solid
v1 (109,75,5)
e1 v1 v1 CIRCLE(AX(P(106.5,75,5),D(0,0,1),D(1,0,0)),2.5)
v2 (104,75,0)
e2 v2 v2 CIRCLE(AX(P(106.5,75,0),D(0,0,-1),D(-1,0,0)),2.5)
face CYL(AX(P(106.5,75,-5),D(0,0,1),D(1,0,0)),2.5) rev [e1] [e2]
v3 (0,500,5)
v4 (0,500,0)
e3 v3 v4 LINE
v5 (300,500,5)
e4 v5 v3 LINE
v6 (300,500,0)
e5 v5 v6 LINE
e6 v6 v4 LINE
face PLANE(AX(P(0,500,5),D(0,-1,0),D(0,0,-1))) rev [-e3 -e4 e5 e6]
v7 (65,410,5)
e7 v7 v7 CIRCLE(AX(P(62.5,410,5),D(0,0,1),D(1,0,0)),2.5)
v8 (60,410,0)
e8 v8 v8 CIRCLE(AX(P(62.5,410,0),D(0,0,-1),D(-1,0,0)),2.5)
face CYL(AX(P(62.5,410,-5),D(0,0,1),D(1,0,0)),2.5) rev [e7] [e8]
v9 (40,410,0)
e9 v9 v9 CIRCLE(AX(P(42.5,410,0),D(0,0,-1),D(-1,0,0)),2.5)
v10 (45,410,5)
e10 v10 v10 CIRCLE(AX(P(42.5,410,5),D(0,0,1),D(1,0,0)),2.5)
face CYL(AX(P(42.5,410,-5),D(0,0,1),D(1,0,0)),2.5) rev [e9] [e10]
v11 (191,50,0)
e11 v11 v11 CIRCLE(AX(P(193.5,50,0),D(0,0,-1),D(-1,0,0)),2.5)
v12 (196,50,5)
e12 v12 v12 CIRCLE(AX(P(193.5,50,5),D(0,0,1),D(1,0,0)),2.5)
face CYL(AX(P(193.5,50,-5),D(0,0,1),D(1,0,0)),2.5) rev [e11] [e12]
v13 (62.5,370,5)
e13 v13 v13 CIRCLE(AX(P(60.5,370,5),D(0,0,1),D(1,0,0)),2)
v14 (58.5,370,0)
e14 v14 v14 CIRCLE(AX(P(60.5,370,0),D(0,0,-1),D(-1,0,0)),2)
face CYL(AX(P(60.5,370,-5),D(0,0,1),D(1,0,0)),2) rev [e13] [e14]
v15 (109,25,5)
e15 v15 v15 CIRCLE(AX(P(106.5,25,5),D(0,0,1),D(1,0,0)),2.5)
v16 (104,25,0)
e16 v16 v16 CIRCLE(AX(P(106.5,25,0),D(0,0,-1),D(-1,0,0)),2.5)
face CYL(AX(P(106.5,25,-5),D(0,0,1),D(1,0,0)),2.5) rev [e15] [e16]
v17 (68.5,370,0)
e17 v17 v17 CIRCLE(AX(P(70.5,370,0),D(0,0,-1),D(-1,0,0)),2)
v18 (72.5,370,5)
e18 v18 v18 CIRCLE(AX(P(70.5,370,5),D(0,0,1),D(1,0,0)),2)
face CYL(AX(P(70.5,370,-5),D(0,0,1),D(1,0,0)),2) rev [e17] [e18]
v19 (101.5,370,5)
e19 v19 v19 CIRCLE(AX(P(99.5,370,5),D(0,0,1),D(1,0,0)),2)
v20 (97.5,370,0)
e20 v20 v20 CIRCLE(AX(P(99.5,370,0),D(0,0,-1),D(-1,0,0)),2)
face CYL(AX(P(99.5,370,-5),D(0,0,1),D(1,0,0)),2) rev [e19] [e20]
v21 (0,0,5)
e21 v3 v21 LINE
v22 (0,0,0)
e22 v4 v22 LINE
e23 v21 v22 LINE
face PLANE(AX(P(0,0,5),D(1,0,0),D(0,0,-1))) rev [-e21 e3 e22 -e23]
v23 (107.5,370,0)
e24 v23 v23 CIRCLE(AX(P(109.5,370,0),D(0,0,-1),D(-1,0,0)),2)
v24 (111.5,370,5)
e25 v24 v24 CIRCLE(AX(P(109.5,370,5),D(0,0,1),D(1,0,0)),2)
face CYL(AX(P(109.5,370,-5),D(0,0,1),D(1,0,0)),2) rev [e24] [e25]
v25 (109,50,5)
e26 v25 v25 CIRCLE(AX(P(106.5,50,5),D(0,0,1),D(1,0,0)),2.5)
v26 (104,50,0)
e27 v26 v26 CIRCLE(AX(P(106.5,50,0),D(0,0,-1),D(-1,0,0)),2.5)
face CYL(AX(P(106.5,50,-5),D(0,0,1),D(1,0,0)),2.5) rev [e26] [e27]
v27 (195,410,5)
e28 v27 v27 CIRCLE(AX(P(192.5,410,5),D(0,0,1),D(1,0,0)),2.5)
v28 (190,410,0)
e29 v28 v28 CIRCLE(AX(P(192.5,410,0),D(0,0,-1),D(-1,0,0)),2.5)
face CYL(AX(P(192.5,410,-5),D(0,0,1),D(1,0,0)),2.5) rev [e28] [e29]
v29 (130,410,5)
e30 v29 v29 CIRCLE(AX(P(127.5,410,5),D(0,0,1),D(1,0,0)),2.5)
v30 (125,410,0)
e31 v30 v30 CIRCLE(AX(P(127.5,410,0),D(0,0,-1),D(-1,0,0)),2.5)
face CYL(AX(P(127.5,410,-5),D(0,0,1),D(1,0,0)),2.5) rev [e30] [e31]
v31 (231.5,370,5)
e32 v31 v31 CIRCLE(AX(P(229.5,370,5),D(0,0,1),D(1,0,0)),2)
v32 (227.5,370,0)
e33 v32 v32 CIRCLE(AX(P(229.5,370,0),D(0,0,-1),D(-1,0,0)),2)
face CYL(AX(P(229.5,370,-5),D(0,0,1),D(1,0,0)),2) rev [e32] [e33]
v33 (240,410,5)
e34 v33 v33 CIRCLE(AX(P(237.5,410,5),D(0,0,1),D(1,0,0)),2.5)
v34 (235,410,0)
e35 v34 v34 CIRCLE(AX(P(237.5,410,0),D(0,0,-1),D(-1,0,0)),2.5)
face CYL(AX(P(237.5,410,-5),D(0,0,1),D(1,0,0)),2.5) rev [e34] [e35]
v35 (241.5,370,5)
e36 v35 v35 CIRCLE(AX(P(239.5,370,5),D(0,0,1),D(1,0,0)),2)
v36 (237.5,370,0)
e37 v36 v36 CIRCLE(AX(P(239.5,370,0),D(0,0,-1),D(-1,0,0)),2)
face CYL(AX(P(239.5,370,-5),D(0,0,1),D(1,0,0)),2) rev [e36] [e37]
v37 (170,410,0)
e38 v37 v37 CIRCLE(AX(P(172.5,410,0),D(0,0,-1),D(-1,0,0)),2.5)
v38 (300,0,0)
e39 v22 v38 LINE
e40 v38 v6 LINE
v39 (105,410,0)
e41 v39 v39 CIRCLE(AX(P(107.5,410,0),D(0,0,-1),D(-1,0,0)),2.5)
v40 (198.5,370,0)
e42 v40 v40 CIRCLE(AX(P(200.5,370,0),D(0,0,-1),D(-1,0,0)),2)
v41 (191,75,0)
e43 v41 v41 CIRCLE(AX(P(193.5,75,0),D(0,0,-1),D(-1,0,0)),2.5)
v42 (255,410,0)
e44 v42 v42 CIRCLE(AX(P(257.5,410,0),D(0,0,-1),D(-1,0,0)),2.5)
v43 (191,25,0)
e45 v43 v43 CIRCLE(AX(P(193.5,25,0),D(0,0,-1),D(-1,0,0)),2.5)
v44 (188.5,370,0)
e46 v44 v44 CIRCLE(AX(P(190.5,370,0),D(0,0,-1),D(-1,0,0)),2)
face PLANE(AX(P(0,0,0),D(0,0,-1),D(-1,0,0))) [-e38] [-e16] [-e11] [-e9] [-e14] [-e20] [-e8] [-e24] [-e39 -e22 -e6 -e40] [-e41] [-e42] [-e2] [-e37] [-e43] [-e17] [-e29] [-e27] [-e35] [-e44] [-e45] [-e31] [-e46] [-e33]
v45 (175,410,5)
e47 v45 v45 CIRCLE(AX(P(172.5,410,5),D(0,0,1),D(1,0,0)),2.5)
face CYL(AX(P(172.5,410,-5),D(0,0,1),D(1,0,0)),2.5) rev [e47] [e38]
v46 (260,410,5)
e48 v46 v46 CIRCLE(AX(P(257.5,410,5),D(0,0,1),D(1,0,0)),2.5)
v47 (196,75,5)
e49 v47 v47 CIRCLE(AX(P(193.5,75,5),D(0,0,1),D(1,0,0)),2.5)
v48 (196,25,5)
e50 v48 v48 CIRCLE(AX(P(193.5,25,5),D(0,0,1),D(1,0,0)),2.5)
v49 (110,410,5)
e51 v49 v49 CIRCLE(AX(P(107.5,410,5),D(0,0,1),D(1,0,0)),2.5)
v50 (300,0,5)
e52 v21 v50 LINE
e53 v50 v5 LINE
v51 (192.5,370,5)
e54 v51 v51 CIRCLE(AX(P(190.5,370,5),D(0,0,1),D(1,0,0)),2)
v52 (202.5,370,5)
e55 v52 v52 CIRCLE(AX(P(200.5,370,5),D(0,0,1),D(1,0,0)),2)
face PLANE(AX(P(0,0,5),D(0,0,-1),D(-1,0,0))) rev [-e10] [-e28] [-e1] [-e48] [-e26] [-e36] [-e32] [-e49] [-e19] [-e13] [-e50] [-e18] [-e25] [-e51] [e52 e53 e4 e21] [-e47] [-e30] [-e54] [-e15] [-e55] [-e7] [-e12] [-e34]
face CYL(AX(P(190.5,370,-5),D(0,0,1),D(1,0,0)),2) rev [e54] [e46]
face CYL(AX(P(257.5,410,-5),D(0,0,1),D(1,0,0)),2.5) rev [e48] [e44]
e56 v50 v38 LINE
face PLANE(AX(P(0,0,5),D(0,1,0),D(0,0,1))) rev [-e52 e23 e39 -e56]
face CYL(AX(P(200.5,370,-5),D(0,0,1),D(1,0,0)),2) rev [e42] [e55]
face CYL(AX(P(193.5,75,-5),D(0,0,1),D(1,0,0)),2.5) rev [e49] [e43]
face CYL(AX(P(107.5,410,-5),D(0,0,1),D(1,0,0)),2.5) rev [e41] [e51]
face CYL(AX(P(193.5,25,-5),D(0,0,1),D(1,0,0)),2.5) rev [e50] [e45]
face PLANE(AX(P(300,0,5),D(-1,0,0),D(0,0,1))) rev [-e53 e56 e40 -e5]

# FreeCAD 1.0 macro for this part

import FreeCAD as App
import Part
import Sketcher
from FreeCAD import Vector
Q = App.Units.Quantity


def add_polygon(sketch, points):
    """Adds a closed chain of lines whose ends are joined by coincident constraints."""
    first, n = sketch.GeometryCount, len(points)
    for a, b in zip(points, points[1:] + points[:1]):
        sketch.addGeometry(Part.LineSegment(App.Vector(*a, 0), App.Vector(*b, 0)), False)
    for i in range(n):
        sketch.addConstraint(Sketcher.Constraint("Coincident", first + i, 2, first + (i + 1) % n, 1))

doc = App.newDocument("Part")
body = doc.addObject("PartDesign::Body", "Body")

sketch1 = body.newObject("Sketcher::SketchObject", "Sketch")
sketch1.AttachmentSupport = (doc.getObject("XY_Plane"), [""])
sketch1.MapMode = "FlatFace"
add_polygon(sketch1, [(0, 500), (0, 0), (300, 0), (300, 500)])
sketch1.addConstraint([
    Sketcher.Constraint("Vertical", 0),
    Sketcher.Constraint("Horizontal", 1),
    Sketcher.Constraint("Vertical", 2),
    Sketcher.Constraint("Horizontal", 3),
    Sketcher.Constraint("Coincident", 0, 2, -1, 1),
    Sketcher.Constraint("DistanceX", 1, 1, 1, 2, Q("300 mm")),
    Sketcher.Constraint("DistanceY", 0, 2, 0, 1, Q("500 mm")),
])
pad1 = body.newObject("PartDesign::Pad", "Pad")
pad1.Profile = sketch1
pad1.Length = 5

sketch2 = body.newObject("Sketcher::SketchObject", "Sketch001")
sketch2.AttachmentSupport = (doc.getObject("XY_Plane"), [""])
sketch2.MapMode = "FlatFace"
sketch2.AttachmentOffset = App.Placement(Vector(0, 0, 5), App.Rotation())
sketch2.addGeometry([
    Part.Circle(Vector(42.5, 410, 0), Vector(0, 0, 1), 2.5),
    Part.Circle(Vector(62.5, 410, 0), Vector(0, 0, 1), 2.5),
    Part.Circle(Vector(107.5, 410, 0), Vector(0, 0, 1), 2.5),
    Part.Circle(Vector(127.5, 410, 0), Vector(0, 0, 1), 2.5),
    Part.Circle(Vector(172.5, 410, 0), Vector(0, 0, 1), 2.5),
    Part.Circle(Vector(192.5, 410, 0), Vector(0, 0, 1), 2.5),
    Part.Circle(Vector(237.5, 410, 0), Vector(0, 0, 1), 2.5),
    Part.Circle(Vector(70.5, 370, 0), Vector(0, 0, 1), 2),
    Part.Circle(Vector(99.5, 370, 0), Vector(0, 0, 1), 2),
    Part.Circle(Vector(200.5, 370, 0), Vector(0, 0, 1), 2),
    Part.Circle(Vector(257.5, 410, 0), Vector(0, 0, 1), 2.5),
    Part.Circle(Vector(229.5, 370, 0), Vector(0, 0, 1), 2),
    Part.Circle(Vector(60.5, 370, 0), Vector(0, 0, 1), 2),
    Part.Circle(Vector(109.5, 370, 0), Vector(0, 0, 1), 2),
    Part.Circle(Vector(190.5, 370, 0), Vector(0, 0, 1), 2),
    Part.Circle(Vector(239.5, 370, 0), Vector(0, 0, 1), 2),
], False)
sketch2.addConstraint([
    Sketcher.Constraint("Equal", 0, 1),
    Sketcher.Constraint("Equal", 1, 2),
    Sketcher.Constraint("Equal", 2, 3),
    Sketcher.Constraint("Equal", 3, 4),
    Sketcher.Constraint("Equal", 4, 5),
    Sketcher.Constraint("Equal", 5, 6),
    Sketcher.Constraint("Equal", 7, 8),
    Sketcher.Constraint("Equal", 8, 9),
    Sketcher.Constraint("Equal", 6, 10),
    Sketcher.Constraint("Equal", 9, 11),
    Sketcher.Constraint("Equal", 11, 12),
    Sketcher.Constraint("Equal", 12, 13),
    Sketcher.Constraint("Equal", 13, 14),
    Sketcher.Constraint("Equal", 14, 15),
    Sketcher.Constraint("Horizontal", 0, 3, 1, 3),
    Sketcher.Constraint("Horizontal", 1, 3, 2, 3),
    Sketcher.Constraint("Horizontal", 2, 3, 3, 3),
    Sketcher.Constraint("Horizontal", 3, 3, 4, 3),
    Sketcher.Constraint("Horizontal", 4, 3, 5, 3),
    Sketcher.Constraint("Horizontal", 5, 3, 6, 3),
    Sketcher.Constraint("Horizontal", 7, 3, 8, 3),
    Sketcher.Constraint("Horizontal", 8, 3, 9, 3),
    Sketcher.Constraint("Horizontal", 6, 3, 10, 3),
    Sketcher.Constraint("Horizontal", 9, 3, 11, 3),
    Sketcher.Constraint("Horizontal", 11, 3, 12, 3),
    Sketcher.Constraint("Horizontal", 12, 3, 13, 3),
    Sketcher.Constraint("Horizontal", 13, 3, 14, 3),
    Sketcher.Constraint("Horizontal", 14, 3, 15, 3),
    Sketcher.Constraint("Diameter", 0, Q("5 mm")),
    Sketcher.Constraint("Diameter", 7, Q("4 mm")),
    Sketcher.Constraint("DistanceY", -1, 1, 0, 3, Q("410 mm")),
    Sketcher.Constraint("DistanceY", -1, 1, 7, 3, Q("370 mm")),
    Sketcher.Constraint("DistanceX", 0, 3, 1, 3, Q("20 mm")),
    Sketcher.Constraint("DistanceX", 1, 3, 2, 3, Q("45 mm")),
    Sketcher.Constraint("DistanceX", 2, 3, 3, 3, Q("20 mm")),
    Sketcher.Constraint("DistanceX", 3, 3, 4, 3, Q("45 mm")),
    Sketcher.Constraint("DistanceX", 4, 3, 5, 3, Q("20 mm")),
    Sketcher.Constraint("DistanceX", 5, 3, 6, 3, Q("45 mm")),
    Sketcher.Constraint("DistanceX", 1, 3, 7, 3, Q("8 mm")),
    Sketcher.Constraint("DistanceX", 7, 3, 8, 3, Q("29 mm")),
    Sketcher.Constraint("DistanceX", 5, 3, 9, 3, Q("8 mm")),
    Sketcher.Constraint("DistanceX", 6, 3, 10, 3, Q("20 mm")),
    Sketcher.Constraint("DistanceX", 9, 3, 11, 3, Q("29 mm")),
    Sketcher.Constraint("DistanceX", 12, 3, 7, 3, Q("10 mm")),
    Sketcher.Constraint("DistanceX", 8, 3, 13, 3, Q("10 mm")),
    Sketcher.Constraint("DistanceX", 14, 3, 9, 3, Q("10 mm")),
    Sketcher.Constraint("DistanceX", 11, 3, 15, 3, Q("10 mm")),
    Sketcher.Constraint("DistanceX", -1, 1, 0, 3, Q("42.5 mm")),
])
pocket1 = body.newObject("PartDesign::Pocket", "Pocket")
pocket1.Profile = sketch2
pocket1.Length = 10

sketch3 = body.newObject("Sketcher::SketchObject", "Sketch002")
sketch3.AttachmentSupport = (doc.getObject("XY_Plane"), [""])
sketch3.MapMode = "FlatFace"
sketch3.AttachmentOffset = App.Placement(Vector(0, 0, 5), App.Rotation())
sketch3.addGeometry([
    Part.Circle(Vector(106.5, 25, 0), Vector(0, 0, 1), 2.5),
    Part.Circle(Vector(106.5, 50, 0), Vector(0, 0, 1), 2.5),
    Part.Circle(Vector(106.5, 75, 0), Vector(0, 0, 1), 2.5),
    Part.Circle(Vector(193.5, 25, 0), Vector(0, 0, 1), 2.5),
    Part.Circle(Vector(193.5, 50, 0), Vector(0, 0, 1), 2.5),
    Part.Circle(Vector(193.5, 75, 0), Vector(0, 0, 1), 2.5),
], False)
sketch3.addConstraint([
    Sketcher.Constraint("Equal", 0, 1),
    Sketcher.Constraint("Equal", 1, 2),
    Sketcher.Constraint("Equal", 2, 3),
    Sketcher.Constraint("Equal", 3, 4),
    Sketcher.Constraint("Equal", 4, 5),
    Sketcher.Constraint("Horizontal", 0, 3, 3, 3),
    Sketcher.Constraint("Horizontal", 1, 3, 4, 3),
    Sketcher.Constraint("Horizontal", 2, 3, 5, 3),
    Sketcher.Constraint("Vertical", 0, 3, 1, 3),
    Sketcher.Constraint("Vertical", 1, 3, 2, 3),
    Sketcher.Constraint("Vertical", 3, 3, 4, 3),
    Sketcher.Constraint("Vertical", 4, 3, 5, 3),
    Sketcher.Constraint("Diameter", 0, Q("5 mm")),
    Sketcher.Constraint("DistanceY", -1, 1, 0, 3, Q("25 mm")),
    Sketcher.Constraint("DistanceY", -1, 1, 1, 3, Q("50 mm")),
    Sketcher.Constraint("DistanceY", -1, 1, 2, 3, Q("75 mm")),
    Sketcher.Constraint("DistanceX", 0, 3, 3, 3, Q("87 mm")),
    Sketcher.Constraint("DistanceX", -1, 1, 0, 3, Q("106.5 mm")),
])
pocket2 = body.newObject("PartDesign::Pocket", "Pocket001")
pocket2.Profile = sketch3
pocket2.Length = 10

doc.recompute()
